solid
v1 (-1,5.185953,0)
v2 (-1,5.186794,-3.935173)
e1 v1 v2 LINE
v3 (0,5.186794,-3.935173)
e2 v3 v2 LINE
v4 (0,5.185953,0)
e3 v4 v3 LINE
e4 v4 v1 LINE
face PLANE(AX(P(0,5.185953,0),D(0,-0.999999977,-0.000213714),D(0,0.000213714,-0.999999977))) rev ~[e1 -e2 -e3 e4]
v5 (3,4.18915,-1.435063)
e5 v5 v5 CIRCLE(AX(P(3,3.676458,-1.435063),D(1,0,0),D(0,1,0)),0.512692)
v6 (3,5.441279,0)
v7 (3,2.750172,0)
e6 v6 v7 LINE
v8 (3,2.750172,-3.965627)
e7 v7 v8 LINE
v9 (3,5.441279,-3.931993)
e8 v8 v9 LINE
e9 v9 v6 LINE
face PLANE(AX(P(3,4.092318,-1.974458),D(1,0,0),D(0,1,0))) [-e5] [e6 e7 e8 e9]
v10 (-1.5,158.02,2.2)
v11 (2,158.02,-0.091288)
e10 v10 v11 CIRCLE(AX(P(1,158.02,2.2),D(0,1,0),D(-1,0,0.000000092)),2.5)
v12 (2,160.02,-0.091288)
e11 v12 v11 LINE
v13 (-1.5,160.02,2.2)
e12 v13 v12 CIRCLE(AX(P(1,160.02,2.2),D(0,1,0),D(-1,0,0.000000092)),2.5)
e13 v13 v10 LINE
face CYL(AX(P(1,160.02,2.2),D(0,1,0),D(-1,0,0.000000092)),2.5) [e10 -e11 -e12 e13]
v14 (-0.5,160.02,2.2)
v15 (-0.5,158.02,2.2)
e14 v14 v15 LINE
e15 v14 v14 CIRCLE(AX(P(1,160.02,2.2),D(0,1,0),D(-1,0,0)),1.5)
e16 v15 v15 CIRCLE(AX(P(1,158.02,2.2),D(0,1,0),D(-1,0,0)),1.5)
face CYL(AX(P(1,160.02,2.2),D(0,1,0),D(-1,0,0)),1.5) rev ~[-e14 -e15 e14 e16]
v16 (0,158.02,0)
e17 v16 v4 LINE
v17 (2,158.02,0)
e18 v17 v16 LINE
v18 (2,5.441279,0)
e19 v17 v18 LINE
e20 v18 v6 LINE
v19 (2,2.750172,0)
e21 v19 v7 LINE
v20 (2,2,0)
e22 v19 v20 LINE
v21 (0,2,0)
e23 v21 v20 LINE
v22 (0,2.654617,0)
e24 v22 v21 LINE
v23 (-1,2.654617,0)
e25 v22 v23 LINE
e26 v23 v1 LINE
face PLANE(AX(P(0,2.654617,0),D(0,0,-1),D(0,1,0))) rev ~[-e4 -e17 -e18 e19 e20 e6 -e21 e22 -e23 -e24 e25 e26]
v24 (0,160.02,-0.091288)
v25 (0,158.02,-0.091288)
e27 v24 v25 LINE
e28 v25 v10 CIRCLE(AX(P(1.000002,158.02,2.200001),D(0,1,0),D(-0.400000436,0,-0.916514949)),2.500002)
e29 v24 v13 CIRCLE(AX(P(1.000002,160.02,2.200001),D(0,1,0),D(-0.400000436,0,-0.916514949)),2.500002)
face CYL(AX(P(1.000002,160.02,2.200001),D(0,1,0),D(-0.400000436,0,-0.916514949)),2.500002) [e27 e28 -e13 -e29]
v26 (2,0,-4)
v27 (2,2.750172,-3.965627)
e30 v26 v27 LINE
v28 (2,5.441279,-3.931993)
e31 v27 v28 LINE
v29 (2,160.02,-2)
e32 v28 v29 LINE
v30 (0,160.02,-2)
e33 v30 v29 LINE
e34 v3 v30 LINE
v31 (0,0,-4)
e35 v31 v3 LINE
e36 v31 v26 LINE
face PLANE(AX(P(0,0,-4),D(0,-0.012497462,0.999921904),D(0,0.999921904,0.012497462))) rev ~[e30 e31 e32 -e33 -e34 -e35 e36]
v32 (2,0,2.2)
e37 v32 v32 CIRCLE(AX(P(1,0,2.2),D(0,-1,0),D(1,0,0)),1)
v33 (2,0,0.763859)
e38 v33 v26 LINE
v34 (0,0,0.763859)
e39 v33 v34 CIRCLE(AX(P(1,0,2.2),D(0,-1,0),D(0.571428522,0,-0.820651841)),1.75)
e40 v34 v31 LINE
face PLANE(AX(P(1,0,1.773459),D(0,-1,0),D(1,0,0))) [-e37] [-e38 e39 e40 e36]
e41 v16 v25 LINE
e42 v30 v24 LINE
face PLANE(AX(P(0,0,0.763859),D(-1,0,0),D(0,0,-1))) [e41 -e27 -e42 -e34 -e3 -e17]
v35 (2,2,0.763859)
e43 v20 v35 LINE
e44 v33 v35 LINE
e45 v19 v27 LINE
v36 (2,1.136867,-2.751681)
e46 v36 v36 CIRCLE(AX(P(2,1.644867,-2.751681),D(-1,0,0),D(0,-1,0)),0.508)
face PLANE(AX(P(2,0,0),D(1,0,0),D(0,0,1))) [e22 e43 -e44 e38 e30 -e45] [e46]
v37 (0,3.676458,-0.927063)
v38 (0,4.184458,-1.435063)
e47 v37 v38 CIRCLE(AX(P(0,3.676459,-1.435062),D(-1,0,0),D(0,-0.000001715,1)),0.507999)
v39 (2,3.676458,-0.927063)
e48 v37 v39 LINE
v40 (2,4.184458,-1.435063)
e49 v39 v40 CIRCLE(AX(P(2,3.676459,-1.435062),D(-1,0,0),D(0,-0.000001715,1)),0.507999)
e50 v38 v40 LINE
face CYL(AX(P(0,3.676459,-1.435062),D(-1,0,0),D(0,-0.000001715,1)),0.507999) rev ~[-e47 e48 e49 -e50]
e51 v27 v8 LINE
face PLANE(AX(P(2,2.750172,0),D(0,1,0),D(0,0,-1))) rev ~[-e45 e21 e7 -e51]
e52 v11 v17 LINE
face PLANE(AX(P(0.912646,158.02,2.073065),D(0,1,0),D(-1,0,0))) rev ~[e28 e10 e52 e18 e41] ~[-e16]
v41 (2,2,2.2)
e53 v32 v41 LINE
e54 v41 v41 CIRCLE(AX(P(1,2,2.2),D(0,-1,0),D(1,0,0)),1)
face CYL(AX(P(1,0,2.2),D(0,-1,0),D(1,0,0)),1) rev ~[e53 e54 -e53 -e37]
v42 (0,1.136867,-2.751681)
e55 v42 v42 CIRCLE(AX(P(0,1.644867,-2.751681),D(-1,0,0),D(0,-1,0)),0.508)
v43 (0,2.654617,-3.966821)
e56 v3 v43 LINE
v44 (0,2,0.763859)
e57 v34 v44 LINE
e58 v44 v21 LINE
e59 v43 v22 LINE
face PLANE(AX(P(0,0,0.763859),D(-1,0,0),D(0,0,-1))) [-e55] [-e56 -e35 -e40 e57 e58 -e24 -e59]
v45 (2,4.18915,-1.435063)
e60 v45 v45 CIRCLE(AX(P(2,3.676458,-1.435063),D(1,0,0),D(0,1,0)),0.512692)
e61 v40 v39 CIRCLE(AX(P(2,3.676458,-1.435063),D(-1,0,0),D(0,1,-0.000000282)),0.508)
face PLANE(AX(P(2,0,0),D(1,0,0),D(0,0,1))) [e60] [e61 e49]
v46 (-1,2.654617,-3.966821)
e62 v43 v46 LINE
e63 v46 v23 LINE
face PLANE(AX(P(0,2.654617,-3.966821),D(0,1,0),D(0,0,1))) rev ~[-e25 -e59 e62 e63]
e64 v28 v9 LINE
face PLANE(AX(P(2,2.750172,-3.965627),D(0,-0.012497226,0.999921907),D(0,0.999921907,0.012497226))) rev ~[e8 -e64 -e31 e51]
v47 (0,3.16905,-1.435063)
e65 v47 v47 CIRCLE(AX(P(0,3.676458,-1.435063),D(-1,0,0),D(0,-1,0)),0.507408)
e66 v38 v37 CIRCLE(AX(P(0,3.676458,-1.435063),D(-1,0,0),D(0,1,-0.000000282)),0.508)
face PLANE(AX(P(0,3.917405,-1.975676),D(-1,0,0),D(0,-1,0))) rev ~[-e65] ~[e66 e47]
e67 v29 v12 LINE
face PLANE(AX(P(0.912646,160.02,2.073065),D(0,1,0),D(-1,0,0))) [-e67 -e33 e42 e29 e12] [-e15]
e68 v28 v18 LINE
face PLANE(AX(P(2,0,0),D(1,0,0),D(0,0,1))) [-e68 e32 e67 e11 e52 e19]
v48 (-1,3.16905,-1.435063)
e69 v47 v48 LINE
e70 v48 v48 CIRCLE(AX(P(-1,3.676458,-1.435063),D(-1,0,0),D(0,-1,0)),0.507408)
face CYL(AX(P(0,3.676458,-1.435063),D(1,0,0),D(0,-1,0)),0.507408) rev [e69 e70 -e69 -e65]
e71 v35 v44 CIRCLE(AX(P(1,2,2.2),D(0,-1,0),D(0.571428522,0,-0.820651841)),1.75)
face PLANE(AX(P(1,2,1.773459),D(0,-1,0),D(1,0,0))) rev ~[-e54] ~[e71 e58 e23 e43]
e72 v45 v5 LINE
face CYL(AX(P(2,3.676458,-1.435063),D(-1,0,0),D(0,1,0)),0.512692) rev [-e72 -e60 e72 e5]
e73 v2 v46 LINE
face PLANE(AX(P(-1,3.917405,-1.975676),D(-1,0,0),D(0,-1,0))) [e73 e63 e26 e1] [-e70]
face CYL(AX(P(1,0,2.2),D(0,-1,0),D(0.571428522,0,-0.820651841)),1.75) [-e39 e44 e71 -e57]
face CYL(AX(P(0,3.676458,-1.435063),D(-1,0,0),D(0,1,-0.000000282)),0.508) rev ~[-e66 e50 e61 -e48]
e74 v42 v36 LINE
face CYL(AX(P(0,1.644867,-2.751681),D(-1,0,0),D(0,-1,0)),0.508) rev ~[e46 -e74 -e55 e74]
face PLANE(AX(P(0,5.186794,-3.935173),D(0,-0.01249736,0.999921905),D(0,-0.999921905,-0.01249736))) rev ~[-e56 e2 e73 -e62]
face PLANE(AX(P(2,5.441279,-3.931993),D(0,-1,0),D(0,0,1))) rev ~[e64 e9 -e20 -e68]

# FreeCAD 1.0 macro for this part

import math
import FreeCAD as App
import Part
import Sketcher

V = App.Vector
Q = App.Units.Quantity


def add_polygon(sketch, points):
    """Adds a closed chain of lines whose ends are joined by coincident constraints."""
    first, n = sketch.GeometryCount, len(points)
    for a, b in zip(points, points[1:] + points[:1]):
        sketch.addGeometry(Part.LineSegment(App.Vector(*a, 0), App.Vector(*b, 0)), False)
    for i in range(n):
        sketch.addConstraint(Sketcher.Constraint("Coincident", first + i, 2, first + (i + 1) % n, 1))

doc = App.newDocument("Part")
body = doc.addObject("PartDesign::Body", "Body")

# Sketch on YZ plane
sketch1 = doc.addObject("Sketcher::SketchObject", "Sketch")
body.addObject(sketch1)
sketch1.AttachmentSupport = (doc.YZ_Plane, [""])
sketch1.MapMode = "FlatFace"
add_polygon(sketch1, [(0, 0), (0, -4), (160.02, -2), (160.02, 0)])  # lines 0-3
sketch1.addGeometry(Part.Circle(V(1.644867, -2.751681, 0), V(0, 0, 1), 0.508), False)  # 4
sketch1.addGeometry(Part.ArcOfCircle(Part.Circle(V(3.676459, -1.435062, 0), V(0, 0, 1), 0.507999), math.radians(-0.000098), math.radians(90.000098)), False)  # 5
sketch1.addGeometry(Part.ArcOfCircle(Part.Circle(V(3.676458, -1.435063, 0), V(0, 0, 1), 0.508), math.radians(90.000016), math.radians(359.999984)), False)  # 6
sketch1.addConstraint(Sketcher.Constraint("Tangent", 5, 1, 6, 2))
sketch1.addConstraint(Sketcher.Constraint("Coincident", 6, 1, 5, 2))
sketch1.addConstraint(Sketcher.Constraint("Vertical", 0))
sketch1.addConstraint(Sketcher.Constraint("Vertical", 2))
sketch1.addConstraint(Sketcher.Constraint("Horizontal", 3))
sketch1.addConstraint(Sketcher.Constraint("Coincident", 3, 2, -1, 1))
sketch1.addConstraint(Sketcher.Constraint("Equal", 4, 5))
sketch1.addConstraint(Sketcher.Constraint("Horizontal", 6, 3, 5, 1))
sketch1.addConstraint(Sketcher.Constraint("Vertical", 5, 3, 6, 1))
sketch1.addConstraint(Sketcher.Constraint("DistanceY", 0, 2, 0, 1, Q("4 mm")))
sketch1.addConstraint(Sketcher.Constraint("DistanceY", 2, 1, 2, 2, Q("2 mm")))
sketch1.addConstraint(Sketcher.Constraint("Diameter", 4, Q("1.016 mm")))
sketch1.addConstraint(Sketcher.Constraint("DistanceX", 3, 2, 3, 1, Q("160.02 mm")))
sketch1.addConstraint(Sketcher.Constraint("DistanceY", 4, 3, -1, 1, Q("2.751681 mm")))
sketch1.addConstraint(Sketcher.Constraint("DistanceX", -1, 1, 5, 3, Q("3.676459 mm")))
sketch1.addConstraint(Sketcher.Constraint("DistanceX", 4, 3, 5, 3, Q("2.031592 mm")))
sketch1.addConstraint(Sketcher.Constraint("DistanceY", 4, 3, 5, 3, Q("1.316619 mm")))
pad1 = doc.addObject("PartDesign::Pad", "Pad")
body.addObject(pad1)
pad1.Profile = sketch1
pad1.Length = 2

# Sketch on XZ plane
sketch2 = doc.addObject("Sketcher::SketchObject", "Sketch001")
body.addObject(sketch2)
sketch2.AttachmentSupport = (doc.XZ_Plane, [""])
sketch2.MapMode = "FlatFace"
sketch2.AttachmentOffset = App.Placement(V(0, 0, -160.02), App.Rotation())
sketch2.addGeometry(Part.ArcOfCircle(Part.Circle(V(1.000002, 2.200001, 0), V(0, 0, 1), 2.500002), math.radians(-179.999976), math.radians(-113.578206)), False)
sketch2.addGeometry(Part.ArcOfCircle(Part.Circle(V(1, 2.2, 0), V(0, 0, 1), 2.5), math.radians(-66.42182), math.radians(179.999995)), False)
sketch2.addGeometry(Part.LineSegment(V(2, -0.091288, 0), V(2, 0, 0)), False)
sketch2.addGeometry(Part.LineSegment(V(2, 0, 0), V(0, 0, 0)), False)
sketch2.addGeometry(Part.LineSegment(V(0, 0, 0), V(0, -0.091288, 0)), False)
sketch2.addGeometry(Part.Circle(V(1, 2.2, 0), V(0, 0, 1), 1.5), False)
sketch2.addConstraint(Sketcher.Constraint("Tangent", 0, 1, 1, 2))
sketch2.addConstraint(Sketcher.Constraint("Coincident", 1, 1, 2, 1))
sketch2.addConstraint(Sketcher.Constraint("Coincident", 2, 2, 3, 1))
sketch2.addConstraint(Sketcher.Constraint("Coincident", 3, 2, 4, 1))
sketch2.addConstraint(Sketcher.Constraint("Coincident", 4, 2, 0, 2))
sketch2.addConstraint(Sketcher.Constraint("Vertical", 2))
sketch2.addConstraint(Sketcher.Constraint("Horizontal", 3))
sketch2.addConstraint(Sketcher.Constraint("Vertical", 4))
sketch2.addConstraint(Sketcher.Constraint("Coincident", 3, 2, -1, 1))
sketch2.addConstraint(Sketcher.Constraint("Coincident", 5, 3, 0, 3))
sketch2.addConstraint(Sketcher.Constraint("Equal", 0, 1))
sketch2.addConstraint(Sketcher.Constraint("Horizontal", 5, 3, 0, 1))
sketch2.addConstraint(Sketcher.Constraint("Horizontal", 1, 1, 4, 2))
sketch2.addConstraint(Sketcher.Constraint("Diameter", 5, Q("3 mm")))
sketch2.addConstraint(Sketcher.Constraint("Radius", 0, Q("2.500002 mm")))
sketch2.addConstraint(Sketcher.Constraint("DistanceX", 3, 2, 3, 1, Q("2 mm")))
sketch2.addConstraint(Sketcher.Constraint("DistanceY", -1, 1, 0, 3, Q("2.200001 mm")))
pad2 = doc.addObject("PartDesign::Pad", "Pad001")
body.addObject(pad2)
pad2.Profile = sketch2
pad2.Length = 2

# Sketch on XZ plane
sketch3 = doc.addObject("Sketcher::SketchObject", "Sketch002")
body.addObject(sketch3)
sketch3.AttachmentSupport = (doc.XZ_Plane, [""])
sketch3.MapMode = "FlatFace"
sketch3.addGeometry(Part.LineSegment(V(2, 0, 0), V(2, 0.763859, 0)), False)
sketch3.addGeometry(Part.ArcOfCircle(Part.Circle(V(1, 2.2, 0), V(0, 0, 1), 1.75), math.radians(-55.150099), math.radians(235.150099)), False)
sketch3.addGeometry(Part.LineSegment(V(0, 0.763859, 0), V(0, 0, 0)), False)
sketch3.addGeometry(Part.LineSegment(V(0, 0, 0), V(2, 0, 0)), False)
sketch3.addGeometry(Part.Circle(V(1, 2.2, 0), V(0, 0, 1), 1), False)
sketch3.addConstraint(Sketcher.Constraint("Coincident", 0, 2, 1, 1))
sketch3.addConstraint(Sketcher.Constraint("Coincident", 1, 2, 2, 1))
sketch3.addConstraint(Sketcher.Constraint("Coincident", 2, 2, 3, 1))
sketch3.addConstraint(Sketcher.Constraint("Coincident", 3, 2, 0, 1))
sketch3.addConstraint(Sketcher.Constraint("Vertical", 0))
sketch3.addConstraint(Sketcher.Constraint("Vertical", 2))
sketch3.addConstraint(Sketcher.Constraint("Horizontal", 3))
sketch3.addConstraint(Sketcher.Constraint("Coincident", 2, 2, -1, 1))
sketch3.addConstraint(Sketcher.Constraint("Coincident", 4, 3, 1, 3))
sketch3.addConstraint(Sketcher.Constraint("Horizontal", 0, 2, 1, 2))
sketch3.addConstraint(Sketcher.Constraint("Diameter", 4, Q("2 mm")))
sketch3.addConstraint(Sketcher.Constraint("DistanceX", 3, 1, 3, 2, Q("2 mm")))
sketch3.addConstraint(Sketcher.Constraint("Radius", 1, Q("1.75 mm")))
sketch3.addConstraint(Sketcher.Constraint("DistanceY", -1, 1, 1, 3, Q("2.2 mm")))
pad3 = doc.addObject("PartDesign::Pad", "Pad002")
body.addObject(pad3)
pad3.Profile = sketch3
pad3.Length = 2
pad3.Reversed = True

# Sketch on YZ plane
sketch4 = doc.addObject("Sketcher::SketchObject", "Sketch003")
body.addObject(sketch4)
sketch4.AttachmentSupport = (doc.YZ_Plane, [""])
sketch4.MapMode = "FlatFace"
sketch4.AttachmentOffset = App.Placement(V(0, 0, 2), App.Rotation())
add_polygon(sketch4, [(5.441279, 0), (2.750172, 0), (2.750172, -3.965627), (5.441279, -3.931993)])  # lines 0-3
sketch4.addGeometry(Part.Circle(V(3.676458, -1.435063, 0), V(0, 0, 1), 0.512692), False)  # 4
sketch4.addConstraint(Sketcher.Constraint("Horizontal", 0))
sketch4.addConstraint(Sketcher.Constraint("Vertical", 1))
sketch4.addConstraint(Sketcher.Constraint("Vertical", 3))
sketch4.addConstraint(Sketcher.Constraint("PointOnObject", 0, 2, -1))
sketch4.addConstraint(Sketcher.Constraint("Diameter", 4, Q("1.025384 mm")))
sketch4.addConstraint(Sketcher.Constraint("DistanceX", 0, 2, 0, 1, Q("2.691107 mm")))
sketch4.addConstraint(Sketcher.Constraint("DistanceY", 1, 2, 1, 1, Q("3.965627 mm")))
sketch4.addConstraint(Sketcher.Constraint("DistanceY", 3, 1, 3, 2, Q("3.931993 mm")))
sketch4.addConstraint(Sketcher.Constraint("DistanceX", -1, 1, 2, 2, Q("5.441279 mm")))
sketch4.addConstraint(Sketcher.Constraint("DistanceX", 4, 3, 2, 2, Q("1.764821 mm")))
sketch4.addConstraint(Sketcher.Constraint("DistanceY", 2, 2, 4, 3, Q("2.49693 mm")))
pad4 = doc.addObject("PartDesign::Pad", "Pad003")
body.addObject(pad4)
pad4.Profile = sketch4
pad4.Length = 1

# Sketch on YZ plane
sketch5 = doc.addObject("Sketcher::SketchObject", "Sketch004")
body.addObject(sketch5)
sketch5.AttachmentSupport = (doc.YZ_Plane, [""])
sketch5.MapMode = "FlatFace"
add_polygon(sketch5, [(2.654617, 0), (5.185953, 0), (5.186794, -3.935173), (2.654617, -3.966821)])  # lines 0-3
sketch5.addGeometry(Part.Circle(V(3.676458, -1.435063, 0), V(0, 0, 1), 0.507408), False)  # 4
sketch5.addConstraint(Sketcher.Constraint("Horizontal", 0))
sketch5.addConstraint(Sketcher.Constraint("Vertical", 3))
sketch5.addConstraint(Sketcher.Constraint("PointOnObject", 0, 2, -1))
sketch5.addConstraint(Sketcher.Constraint("Diameter", 4, Q("1.014816 mm")))
sketch5.addConstraint(Sketcher.Constraint("DistanceY", 3, 1, 3, 2, Q("3.966821 mm")))
sketch5.addConstraint(Sketcher.Constraint("DistanceX", 0, 1, 0, 2, Q("2.531336 mm")))
sketch5.addConstraint(Sketcher.Constraint("DistanceY", 1, 2, 4, 3, Q("2.50011 mm")))
sketch5.addConstraint(Sketcher.Constraint("DistanceX", 0, 2, 1, 2, Q("0.000841 mm")))
sketch5.addConstraint(Sketcher.Constraint("DistanceY", 2, 2, 1, 2, Q("0.031648 mm")))
sketch5.addConstraint(Sketcher.Constraint("DistanceX", 2, 2, 4, 3, Q("1.021841 mm")))
sketch5.addConstraint(Sketcher.Constraint("DistanceX", -1, 1, 4, 3, Q("3.676458 mm")))
pad5 = doc.addObject("PartDesign::Pad", "Pad004")
body.addObject(pad5)
pad5.Profile = sketch5
pad5.Length = 1
pad5.Reversed = True

doc.recompute()
